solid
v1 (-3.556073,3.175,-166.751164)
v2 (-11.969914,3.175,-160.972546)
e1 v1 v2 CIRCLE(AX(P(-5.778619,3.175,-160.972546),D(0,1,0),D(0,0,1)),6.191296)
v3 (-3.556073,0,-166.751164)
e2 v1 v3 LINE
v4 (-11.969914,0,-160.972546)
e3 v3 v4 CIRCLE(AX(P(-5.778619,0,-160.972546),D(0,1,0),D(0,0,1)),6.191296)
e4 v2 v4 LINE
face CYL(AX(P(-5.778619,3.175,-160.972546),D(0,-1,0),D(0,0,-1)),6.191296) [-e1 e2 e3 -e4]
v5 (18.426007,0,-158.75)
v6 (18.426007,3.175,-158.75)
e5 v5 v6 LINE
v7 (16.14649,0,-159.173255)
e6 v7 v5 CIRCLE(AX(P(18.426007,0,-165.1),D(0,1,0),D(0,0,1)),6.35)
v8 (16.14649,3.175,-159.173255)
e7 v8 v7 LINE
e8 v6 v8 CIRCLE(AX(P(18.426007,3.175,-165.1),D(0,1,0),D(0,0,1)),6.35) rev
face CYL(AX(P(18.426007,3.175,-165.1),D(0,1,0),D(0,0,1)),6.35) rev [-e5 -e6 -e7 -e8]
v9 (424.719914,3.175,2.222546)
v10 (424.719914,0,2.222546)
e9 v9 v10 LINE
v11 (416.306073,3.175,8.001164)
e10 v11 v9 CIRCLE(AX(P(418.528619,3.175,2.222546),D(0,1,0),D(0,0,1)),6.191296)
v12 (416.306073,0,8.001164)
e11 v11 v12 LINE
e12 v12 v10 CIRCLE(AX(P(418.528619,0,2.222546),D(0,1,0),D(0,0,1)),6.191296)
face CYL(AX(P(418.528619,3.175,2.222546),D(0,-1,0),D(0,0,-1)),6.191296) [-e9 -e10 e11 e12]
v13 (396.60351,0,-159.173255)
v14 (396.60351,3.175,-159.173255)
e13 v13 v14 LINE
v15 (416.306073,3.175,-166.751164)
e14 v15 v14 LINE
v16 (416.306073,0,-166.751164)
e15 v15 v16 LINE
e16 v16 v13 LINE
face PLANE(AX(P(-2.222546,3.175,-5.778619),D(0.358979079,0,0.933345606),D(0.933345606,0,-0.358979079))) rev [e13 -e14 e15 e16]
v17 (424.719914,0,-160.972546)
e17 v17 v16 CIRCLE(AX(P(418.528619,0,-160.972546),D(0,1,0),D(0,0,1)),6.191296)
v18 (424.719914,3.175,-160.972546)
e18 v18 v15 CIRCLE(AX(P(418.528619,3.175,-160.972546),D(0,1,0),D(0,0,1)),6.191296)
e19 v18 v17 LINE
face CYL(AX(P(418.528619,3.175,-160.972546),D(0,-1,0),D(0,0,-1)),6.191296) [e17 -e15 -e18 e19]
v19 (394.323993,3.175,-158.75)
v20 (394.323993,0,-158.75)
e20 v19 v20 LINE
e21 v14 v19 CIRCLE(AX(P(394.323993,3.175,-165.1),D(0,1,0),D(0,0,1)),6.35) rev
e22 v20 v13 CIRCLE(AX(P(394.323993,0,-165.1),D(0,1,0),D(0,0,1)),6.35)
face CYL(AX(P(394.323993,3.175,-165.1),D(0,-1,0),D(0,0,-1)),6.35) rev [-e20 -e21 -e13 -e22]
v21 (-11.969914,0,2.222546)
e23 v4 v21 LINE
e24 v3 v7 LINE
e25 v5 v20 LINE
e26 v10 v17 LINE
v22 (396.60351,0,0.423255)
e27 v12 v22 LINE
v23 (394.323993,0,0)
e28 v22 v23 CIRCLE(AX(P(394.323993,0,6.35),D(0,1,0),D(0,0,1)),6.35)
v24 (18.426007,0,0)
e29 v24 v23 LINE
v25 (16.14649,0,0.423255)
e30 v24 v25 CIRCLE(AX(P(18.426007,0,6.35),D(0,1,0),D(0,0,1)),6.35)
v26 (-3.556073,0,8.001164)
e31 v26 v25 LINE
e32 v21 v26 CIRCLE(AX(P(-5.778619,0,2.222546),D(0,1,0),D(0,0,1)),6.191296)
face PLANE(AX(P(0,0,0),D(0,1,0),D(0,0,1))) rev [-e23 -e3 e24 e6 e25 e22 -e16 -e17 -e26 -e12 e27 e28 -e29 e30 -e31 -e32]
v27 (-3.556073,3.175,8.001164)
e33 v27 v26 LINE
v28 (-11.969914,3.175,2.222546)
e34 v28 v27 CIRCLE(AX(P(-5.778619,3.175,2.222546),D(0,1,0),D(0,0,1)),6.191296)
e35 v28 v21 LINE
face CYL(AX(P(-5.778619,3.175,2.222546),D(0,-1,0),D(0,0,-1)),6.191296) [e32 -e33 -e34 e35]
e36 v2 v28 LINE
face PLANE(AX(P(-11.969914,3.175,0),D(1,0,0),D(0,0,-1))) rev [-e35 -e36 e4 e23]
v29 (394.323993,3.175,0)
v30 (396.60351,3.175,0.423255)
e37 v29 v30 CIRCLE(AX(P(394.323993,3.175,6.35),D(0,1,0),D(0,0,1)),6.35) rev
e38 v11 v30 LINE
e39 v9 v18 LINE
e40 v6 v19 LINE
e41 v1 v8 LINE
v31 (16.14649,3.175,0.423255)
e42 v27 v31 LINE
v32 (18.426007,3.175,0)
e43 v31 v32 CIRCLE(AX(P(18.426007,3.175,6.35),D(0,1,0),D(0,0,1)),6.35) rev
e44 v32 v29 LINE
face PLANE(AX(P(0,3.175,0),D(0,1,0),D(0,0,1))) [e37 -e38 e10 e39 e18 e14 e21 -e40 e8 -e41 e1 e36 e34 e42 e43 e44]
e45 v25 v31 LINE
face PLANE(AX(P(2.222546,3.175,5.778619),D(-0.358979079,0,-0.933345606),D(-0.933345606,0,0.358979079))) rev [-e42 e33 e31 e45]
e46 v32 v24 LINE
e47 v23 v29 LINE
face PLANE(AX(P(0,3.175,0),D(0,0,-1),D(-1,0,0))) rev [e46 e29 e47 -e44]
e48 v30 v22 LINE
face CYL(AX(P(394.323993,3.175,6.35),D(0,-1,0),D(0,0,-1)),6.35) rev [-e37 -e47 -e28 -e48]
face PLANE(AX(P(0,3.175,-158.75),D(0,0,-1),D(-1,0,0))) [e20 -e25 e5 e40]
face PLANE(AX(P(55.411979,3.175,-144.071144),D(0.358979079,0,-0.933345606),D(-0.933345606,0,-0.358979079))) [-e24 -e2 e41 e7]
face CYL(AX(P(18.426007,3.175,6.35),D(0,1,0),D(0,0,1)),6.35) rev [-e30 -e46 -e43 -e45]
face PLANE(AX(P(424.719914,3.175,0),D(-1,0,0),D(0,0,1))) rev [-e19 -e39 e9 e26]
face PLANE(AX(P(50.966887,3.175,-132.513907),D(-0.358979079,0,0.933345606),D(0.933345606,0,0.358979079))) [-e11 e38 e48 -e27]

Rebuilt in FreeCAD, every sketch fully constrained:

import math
import FreeCAD as App
import Part
import Sketcher
from FreeCAD import Vector
Q = App.Units.Quantity


def edges_at(feature, points):
    """Names of the edges that pass closest to the given points."""
    edges = feature.Shape.Edges
    near = lambda p: min(range(len(edges)), key=lambda i: edges[i].distToShape(Part.Vertex(*p))[0])
    return sorted({f"Edge{near(p) + 1}" for p in points})

doc = App.newDocument("Part")
body = doc.addObject("PartDesign::Body", "Body")

# Sketch on XZ plane
sketch1 = body.newObject("Sketcher::SketchObject", "Sketch")
sketch1.AttachmentSupport = (doc.getObject("XZ_Plane"), [""])
sketch1.MapMode = "FlatFace"
sketch1.addGeometry([
    Part.LineSegment(Vector(-4, 8, 0), Vector(17, 0, 0)),  # 0
    Part.LineSegment(Vector(17, 0, 0), Vector(396, 0, 0)),  # 1
    Part.LineSegment(Vector(396, 0, 0), Vector(416, 8, 0)),  # 2
    Part.ArcOfCircle(Part.Circle(Vector(419, 2, 0), Vector(0, 0, 1), 6), math.radians(0), math.radians(111)),  # 3
    Part.LineSegment(Vector(425, 2, 0), Vector(425, -161, 0)),  # 4
    Part.ArcOfCircle(Part.Circle(Vector(419, -161, 0), Vector(0, 0, 1), 6), math.radians(-111), math.radians(0)),  # 5
    Part.LineSegment(Vector(416, -167, 0), Vector(396, -159, 0)),  # 6
    Part.LineSegment(Vector(396, -159, 0), Vector(17, -159, 0)),  # 7
    Part.LineSegment(Vector(17, -159, 0), Vector(-4, -167, 0)),  # 8
    Part.ArcOfCircle(Part.Circle(Vector(-6, -161, 0), Vector(0, 0, 1), 6), math.radians(180), math.radians(291)),  # 9
    Part.LineSegment(Vector(-12, -161, 0), Vector(-12, 2, 0)),  # 10
    Part.ArcOfCircle(Part.Circle(Vector(-6, 2, 0), Vector(0, 0, 1), 6), math.radians(69), math.radians(180)),  # 11
], False)
sketch1.addConstraint([
    Sketcher.Constraint("Coincident", 0, 2, 1, 1),
    Sketcher.Constraint("Coincident", 1, 2, 2, 1),
    Sketcher.Constraint("Tangent", 2, 2, 3, 2),
    Sketcher.Constraint("Tangent", 3, 1, 4, 1),
    Sketcher.Constraint("Tangent", 4, 2, 5, 2),
    Sketcher.Constraint("Tangent", 5, 1, 6, 1),
    Sketcher.Constraint("Coincident", 6, 2, 7, 1),
    Sketcher.Constraint("Coincident", 7, 2, 8, 1),
    Sketcher.Constraint("Tangent", 8, 2, 9, 2),
    Sketcher.Constraint("Tangent", 9, 1, 10, 1),
    Sketcher.Constraint("Tangent", 10, 2, 11, 2),
    Sketcher.Constraint("Tangent", 11, 1, 0, 1),
    Sketcher.Constraint("Horizontal", 1),
    Sketcher.Constraint("Vertical", 4),
    Sketcher.Constraint("Horizontal", 7),
    Sketcher.Constraint("Vertical", 10),
    Sketcher.Constraint("Equal", 3, 5),
    Sketcher.Constraint("Equal", 5, 9),
    Sketcher.Constraint("Equal", 9, 11),
    Sketcher.Constraint("PointOnObject", 0, 2, -1),
    Sketcher.Constraint("Parallel", 0, 6),
    Sketcher.Constraint("Parallel", 2, 8),
    Sketcher.Constraint("Horizontal", 5, 3, 9, 3),
    Sketcher.Constraint("Horizontal", 3, 3, 11, 3),
    Sketcher.Constraint("Horizontal", 5, 1, 8, 2),
    Sketcher.Constraint("Vertical", 1, 2, 6, 2),
    Sketcher.Constraint("DistanceY", 6, 2, -1, 1, Q("6.25 in")),
    Sketcher.Constraint("Radius", 3, 6.191296),
    Sketcher.Constraint("DistanceY", 4, 2, 4, 1, 163.195091),
    Sketcher.Constraint("DistanceX", 1, 1, 1, 2, 378.256092),
    Sketcher.Constraint("DistanceX", -1, 1, 3, 3, 418.528619),
    Sketcher.Constraint("DistanceX", 9, 3, -1, 1, 5.778619),
])
pad1 = body.newObject("PartDesign::Pad", "Pad")
pad1.Profile = sketch1
pad1.Length = Q("0.125 in")
pad1.Reversed = True
doc.recompute()

fillet = body.newObject("PartDesign::Fillet", "Fillet")
fillet.Base = (pad1, edges_at(pad1, [
    (17.247, 1.587, -158.75),
    (395.503, 1.587, -158.75),
    (395.503, 1.587, 0),
    (17.247, 1.587, 0),
]))
fillet.Radius = Q("0.25 in")

doc.recompute()
